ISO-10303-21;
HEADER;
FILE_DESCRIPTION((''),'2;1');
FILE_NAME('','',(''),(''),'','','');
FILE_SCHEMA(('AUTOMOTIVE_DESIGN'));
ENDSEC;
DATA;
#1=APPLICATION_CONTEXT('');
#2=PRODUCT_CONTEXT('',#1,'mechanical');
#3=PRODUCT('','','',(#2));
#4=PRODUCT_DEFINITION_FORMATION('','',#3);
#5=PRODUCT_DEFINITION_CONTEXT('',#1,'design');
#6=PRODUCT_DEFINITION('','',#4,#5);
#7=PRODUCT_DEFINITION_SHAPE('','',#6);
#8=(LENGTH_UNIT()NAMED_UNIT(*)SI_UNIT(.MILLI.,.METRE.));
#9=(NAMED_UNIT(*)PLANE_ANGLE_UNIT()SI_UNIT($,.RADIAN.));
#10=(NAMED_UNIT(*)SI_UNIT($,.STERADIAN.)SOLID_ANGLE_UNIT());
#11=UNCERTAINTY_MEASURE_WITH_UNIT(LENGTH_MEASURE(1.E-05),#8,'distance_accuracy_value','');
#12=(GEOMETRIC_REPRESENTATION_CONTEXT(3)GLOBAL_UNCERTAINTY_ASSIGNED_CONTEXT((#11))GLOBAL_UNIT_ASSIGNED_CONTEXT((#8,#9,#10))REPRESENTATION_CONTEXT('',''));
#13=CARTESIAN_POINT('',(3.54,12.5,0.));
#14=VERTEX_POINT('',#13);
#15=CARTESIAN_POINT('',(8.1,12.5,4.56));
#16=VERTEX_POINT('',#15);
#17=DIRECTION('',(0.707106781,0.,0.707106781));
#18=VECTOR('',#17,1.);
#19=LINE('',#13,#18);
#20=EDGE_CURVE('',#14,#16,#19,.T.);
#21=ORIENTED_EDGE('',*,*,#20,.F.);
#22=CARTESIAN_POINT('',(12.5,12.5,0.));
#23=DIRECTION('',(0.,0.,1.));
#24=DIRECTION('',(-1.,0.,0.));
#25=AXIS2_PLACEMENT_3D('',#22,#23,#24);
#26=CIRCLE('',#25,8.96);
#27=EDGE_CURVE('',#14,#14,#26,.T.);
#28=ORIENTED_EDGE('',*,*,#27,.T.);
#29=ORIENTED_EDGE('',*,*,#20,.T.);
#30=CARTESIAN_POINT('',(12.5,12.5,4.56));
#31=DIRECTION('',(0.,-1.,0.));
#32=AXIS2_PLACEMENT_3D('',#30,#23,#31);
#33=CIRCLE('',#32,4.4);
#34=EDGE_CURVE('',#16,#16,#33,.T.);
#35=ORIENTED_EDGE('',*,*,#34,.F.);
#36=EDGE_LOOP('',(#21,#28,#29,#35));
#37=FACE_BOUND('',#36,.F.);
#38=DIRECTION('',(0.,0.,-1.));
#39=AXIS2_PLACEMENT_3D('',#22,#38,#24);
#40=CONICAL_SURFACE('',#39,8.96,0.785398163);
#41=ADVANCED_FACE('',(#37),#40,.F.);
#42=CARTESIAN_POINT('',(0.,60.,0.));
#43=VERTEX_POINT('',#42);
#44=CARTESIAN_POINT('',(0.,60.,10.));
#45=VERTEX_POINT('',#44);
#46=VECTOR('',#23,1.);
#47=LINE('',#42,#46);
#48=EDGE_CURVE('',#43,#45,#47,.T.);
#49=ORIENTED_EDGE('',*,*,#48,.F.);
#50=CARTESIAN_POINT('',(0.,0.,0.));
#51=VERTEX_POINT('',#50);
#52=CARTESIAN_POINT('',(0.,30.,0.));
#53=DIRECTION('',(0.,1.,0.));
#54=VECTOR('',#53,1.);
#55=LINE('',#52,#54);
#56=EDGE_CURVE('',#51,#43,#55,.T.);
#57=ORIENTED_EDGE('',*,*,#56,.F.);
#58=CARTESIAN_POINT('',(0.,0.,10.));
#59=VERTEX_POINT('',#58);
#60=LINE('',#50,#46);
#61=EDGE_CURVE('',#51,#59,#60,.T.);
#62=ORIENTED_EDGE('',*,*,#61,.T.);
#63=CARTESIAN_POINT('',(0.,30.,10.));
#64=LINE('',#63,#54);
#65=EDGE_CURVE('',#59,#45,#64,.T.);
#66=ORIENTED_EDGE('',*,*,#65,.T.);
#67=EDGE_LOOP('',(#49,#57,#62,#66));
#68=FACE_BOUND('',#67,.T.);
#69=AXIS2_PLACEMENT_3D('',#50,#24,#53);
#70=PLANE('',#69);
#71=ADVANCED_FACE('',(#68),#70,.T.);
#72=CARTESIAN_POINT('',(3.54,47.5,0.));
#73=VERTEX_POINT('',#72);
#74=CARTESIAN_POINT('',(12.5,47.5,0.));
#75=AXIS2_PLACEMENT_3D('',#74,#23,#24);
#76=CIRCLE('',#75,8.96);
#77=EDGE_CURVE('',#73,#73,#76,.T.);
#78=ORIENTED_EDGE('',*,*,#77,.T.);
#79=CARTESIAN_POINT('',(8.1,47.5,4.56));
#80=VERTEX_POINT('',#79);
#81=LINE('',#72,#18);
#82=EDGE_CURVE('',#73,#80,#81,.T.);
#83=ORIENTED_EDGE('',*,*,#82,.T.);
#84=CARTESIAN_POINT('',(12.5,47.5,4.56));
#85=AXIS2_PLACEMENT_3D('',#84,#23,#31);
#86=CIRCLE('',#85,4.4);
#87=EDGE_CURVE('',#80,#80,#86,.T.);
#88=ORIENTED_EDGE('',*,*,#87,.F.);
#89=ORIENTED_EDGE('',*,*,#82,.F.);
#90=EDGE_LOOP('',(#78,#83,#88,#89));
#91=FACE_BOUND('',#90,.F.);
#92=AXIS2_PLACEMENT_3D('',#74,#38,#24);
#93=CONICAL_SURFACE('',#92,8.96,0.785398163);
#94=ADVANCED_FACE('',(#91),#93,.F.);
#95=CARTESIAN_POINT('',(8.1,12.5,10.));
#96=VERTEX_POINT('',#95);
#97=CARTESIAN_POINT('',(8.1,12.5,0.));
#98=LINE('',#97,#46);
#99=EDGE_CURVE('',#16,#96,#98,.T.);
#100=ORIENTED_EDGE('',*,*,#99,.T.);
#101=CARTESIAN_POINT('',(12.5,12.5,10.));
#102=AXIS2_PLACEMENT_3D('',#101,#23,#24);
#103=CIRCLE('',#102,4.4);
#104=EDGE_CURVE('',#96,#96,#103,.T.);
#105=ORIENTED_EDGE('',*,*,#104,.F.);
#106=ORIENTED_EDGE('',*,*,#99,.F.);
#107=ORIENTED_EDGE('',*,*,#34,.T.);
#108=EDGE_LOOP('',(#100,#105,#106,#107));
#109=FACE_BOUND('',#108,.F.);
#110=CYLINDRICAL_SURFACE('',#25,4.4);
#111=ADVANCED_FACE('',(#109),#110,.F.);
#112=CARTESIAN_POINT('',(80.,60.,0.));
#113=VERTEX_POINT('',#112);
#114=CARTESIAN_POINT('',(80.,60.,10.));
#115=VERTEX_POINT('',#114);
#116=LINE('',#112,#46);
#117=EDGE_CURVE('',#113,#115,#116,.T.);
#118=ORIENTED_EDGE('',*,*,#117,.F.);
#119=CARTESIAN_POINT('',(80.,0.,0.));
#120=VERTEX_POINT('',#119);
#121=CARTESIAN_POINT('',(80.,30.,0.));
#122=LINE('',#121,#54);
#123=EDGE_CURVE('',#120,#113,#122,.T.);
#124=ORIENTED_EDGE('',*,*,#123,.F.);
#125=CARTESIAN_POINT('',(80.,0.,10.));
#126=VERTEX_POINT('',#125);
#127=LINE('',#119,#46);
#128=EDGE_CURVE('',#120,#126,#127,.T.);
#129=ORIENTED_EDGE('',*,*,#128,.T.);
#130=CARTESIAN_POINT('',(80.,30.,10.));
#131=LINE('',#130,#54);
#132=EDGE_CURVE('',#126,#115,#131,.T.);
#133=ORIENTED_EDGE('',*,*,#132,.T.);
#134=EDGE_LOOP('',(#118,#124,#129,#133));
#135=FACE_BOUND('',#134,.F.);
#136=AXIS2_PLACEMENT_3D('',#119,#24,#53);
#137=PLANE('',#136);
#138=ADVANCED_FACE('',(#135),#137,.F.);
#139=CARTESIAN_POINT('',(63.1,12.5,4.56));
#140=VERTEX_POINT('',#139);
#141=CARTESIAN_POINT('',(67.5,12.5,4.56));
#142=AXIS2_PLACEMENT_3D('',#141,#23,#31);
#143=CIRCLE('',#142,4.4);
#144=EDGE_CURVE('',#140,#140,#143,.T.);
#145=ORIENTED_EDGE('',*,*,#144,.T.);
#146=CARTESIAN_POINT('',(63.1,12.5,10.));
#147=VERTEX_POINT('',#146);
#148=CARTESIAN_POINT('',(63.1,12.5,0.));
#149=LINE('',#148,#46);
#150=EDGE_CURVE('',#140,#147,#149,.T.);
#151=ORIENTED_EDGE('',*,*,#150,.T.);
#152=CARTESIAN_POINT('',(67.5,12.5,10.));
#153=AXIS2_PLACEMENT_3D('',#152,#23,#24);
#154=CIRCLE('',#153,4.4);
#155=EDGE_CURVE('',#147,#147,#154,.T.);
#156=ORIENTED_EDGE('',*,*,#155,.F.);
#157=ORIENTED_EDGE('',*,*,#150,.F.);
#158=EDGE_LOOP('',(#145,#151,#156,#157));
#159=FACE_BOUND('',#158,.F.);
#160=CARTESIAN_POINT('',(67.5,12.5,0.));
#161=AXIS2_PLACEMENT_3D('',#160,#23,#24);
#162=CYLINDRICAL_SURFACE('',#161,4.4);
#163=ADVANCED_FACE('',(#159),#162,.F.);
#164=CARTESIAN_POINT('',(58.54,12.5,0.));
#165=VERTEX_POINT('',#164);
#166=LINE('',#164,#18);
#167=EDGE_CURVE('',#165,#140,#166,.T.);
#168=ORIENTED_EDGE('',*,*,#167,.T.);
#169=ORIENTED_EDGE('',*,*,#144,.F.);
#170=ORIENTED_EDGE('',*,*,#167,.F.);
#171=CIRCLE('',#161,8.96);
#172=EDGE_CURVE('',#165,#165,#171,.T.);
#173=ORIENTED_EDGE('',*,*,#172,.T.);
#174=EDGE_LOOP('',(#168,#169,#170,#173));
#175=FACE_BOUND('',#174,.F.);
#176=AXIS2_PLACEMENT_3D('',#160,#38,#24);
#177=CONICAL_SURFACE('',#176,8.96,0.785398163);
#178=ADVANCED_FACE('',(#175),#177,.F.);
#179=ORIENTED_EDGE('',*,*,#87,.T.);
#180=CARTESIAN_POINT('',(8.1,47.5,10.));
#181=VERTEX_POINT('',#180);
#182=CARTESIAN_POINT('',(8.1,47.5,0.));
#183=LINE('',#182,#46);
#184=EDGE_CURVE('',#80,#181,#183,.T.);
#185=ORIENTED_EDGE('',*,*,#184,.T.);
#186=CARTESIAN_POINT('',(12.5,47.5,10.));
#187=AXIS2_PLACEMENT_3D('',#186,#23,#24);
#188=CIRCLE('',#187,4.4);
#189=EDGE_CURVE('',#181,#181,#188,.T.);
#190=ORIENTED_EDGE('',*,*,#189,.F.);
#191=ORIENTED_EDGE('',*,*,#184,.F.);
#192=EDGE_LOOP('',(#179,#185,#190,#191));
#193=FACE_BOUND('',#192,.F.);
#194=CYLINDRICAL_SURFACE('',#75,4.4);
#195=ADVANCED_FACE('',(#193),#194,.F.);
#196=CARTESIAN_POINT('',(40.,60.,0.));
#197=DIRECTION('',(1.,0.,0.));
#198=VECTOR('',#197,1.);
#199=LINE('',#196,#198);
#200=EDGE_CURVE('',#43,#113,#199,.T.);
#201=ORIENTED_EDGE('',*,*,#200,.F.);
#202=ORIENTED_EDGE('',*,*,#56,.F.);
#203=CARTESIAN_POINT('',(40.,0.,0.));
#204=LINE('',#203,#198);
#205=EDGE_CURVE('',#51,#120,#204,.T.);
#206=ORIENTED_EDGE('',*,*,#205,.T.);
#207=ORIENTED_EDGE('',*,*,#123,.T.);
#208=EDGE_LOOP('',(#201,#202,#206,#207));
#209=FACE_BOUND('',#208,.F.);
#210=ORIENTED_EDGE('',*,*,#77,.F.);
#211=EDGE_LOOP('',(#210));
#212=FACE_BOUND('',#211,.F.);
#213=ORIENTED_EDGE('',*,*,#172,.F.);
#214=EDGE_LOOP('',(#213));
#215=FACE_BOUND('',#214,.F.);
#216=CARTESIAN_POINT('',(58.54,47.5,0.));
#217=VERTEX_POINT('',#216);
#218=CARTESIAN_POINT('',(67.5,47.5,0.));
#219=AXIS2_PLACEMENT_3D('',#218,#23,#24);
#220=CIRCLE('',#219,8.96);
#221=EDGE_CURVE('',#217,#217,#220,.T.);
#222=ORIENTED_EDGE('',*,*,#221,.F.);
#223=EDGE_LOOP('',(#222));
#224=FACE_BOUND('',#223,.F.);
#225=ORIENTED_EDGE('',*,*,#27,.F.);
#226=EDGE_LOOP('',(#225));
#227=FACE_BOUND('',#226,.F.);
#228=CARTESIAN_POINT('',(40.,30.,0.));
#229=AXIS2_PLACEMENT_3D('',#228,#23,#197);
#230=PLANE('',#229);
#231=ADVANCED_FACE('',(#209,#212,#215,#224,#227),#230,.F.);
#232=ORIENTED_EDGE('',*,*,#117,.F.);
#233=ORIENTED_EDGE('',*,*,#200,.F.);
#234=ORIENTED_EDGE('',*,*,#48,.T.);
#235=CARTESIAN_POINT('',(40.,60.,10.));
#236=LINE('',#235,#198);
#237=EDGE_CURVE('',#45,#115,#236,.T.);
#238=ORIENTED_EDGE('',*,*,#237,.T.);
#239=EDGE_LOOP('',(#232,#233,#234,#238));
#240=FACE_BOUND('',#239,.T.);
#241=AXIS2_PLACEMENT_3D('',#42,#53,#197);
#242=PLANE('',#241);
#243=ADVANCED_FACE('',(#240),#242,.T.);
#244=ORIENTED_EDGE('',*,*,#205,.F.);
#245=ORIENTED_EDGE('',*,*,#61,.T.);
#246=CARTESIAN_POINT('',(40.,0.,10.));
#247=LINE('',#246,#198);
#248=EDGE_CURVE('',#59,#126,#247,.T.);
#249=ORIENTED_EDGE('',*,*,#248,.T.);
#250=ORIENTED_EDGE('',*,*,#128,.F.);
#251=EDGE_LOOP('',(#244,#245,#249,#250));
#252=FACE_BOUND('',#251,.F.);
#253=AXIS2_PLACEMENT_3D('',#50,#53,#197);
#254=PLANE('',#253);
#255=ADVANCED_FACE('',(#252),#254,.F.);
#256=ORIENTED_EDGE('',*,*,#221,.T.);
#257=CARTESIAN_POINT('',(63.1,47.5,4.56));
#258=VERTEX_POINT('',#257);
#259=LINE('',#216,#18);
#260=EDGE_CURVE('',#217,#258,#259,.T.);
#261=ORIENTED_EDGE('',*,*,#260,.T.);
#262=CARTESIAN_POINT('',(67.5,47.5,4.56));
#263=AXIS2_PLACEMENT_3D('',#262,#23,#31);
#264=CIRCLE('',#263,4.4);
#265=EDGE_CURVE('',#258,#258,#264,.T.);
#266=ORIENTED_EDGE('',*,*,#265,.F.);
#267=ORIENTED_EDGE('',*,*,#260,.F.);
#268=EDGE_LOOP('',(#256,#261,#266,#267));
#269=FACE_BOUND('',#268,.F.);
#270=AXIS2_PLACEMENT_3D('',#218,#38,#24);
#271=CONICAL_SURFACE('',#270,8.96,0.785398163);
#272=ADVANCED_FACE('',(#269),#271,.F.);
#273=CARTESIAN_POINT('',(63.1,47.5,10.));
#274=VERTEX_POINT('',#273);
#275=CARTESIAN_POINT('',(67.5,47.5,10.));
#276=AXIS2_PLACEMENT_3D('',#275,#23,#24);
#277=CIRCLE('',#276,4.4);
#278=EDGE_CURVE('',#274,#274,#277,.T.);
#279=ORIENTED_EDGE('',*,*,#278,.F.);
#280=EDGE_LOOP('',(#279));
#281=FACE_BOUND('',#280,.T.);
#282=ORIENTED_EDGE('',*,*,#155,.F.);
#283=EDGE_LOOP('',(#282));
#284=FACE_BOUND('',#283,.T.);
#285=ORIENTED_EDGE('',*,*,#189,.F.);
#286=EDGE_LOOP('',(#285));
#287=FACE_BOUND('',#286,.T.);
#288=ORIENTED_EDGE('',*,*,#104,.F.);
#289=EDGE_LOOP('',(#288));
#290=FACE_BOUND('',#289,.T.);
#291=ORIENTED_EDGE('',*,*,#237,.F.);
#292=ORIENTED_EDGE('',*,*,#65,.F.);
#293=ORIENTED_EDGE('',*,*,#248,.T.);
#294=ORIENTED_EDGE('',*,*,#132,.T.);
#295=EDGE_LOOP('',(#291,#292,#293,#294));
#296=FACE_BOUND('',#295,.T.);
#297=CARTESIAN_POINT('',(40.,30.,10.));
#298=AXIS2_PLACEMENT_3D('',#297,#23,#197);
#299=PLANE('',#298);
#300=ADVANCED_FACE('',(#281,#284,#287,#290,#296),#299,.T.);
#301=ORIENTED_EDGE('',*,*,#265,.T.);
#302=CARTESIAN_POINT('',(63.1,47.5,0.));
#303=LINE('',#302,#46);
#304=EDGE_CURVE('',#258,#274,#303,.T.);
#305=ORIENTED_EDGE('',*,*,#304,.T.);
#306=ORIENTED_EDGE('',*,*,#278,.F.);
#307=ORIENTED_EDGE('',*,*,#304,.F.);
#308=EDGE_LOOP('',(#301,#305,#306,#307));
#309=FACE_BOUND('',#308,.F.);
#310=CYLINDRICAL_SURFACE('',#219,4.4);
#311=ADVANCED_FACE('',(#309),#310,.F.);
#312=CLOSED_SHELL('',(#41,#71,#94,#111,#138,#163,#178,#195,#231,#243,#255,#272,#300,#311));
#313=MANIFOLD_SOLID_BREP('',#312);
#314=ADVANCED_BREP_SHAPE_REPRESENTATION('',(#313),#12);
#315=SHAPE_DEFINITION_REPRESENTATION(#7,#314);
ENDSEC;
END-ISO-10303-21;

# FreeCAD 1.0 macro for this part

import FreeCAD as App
import Part
import Sketcher
Q = App.Units.Quantity


def add_polygon(sketch, points):
    """Adds a closed chain of lines whose ends are joined by coincident constraints."""
    first, n = sketch.GeometryCount, len(points)
    for a, b in zip(points, points[1:] + points[:1]):
        sketch.addGeometry(Part.LineSegment(App.Vector(*a, 0), App.Vector(*b, 0)), False)
    for i in range(n):
        sketch.addConstraint(Sketcher.Constraint("Coincident", first + i, 2, first + (i + 1) % n, 1))

doc = App.newDocument("Part")
body = doc.addObject("PartDesign::Body", "Body")

sketch1 = body.newObject("Sketcher::SketchObject", "Sketch")
sketch1.AttachmentSupport = (doc.getObject("XY_Plane"), [""])
sketch1.MapMode = "FlatFace"
add_polygon(sketch1, [(0, 60), (0, 0), (80, 0), (80, 60)])
sketch1.addConstraint(Sketcher.Constraint("Vertical", 0))
sketch1.addConstraint(Sketcher.Constraint("Horizontal", 1))
sketch1.addConstraint(Sketcher.Constraint("Vertical", 2))
sketch1.addConstraint(Sketcher.Constraint("Horizontal", 3))
sketch1.addConstraint(Sketcher.Constraint("Coincident", 0, 2, -1, 1))
sketch1.addConstraint(Sketcher.Constraint("DistanceX", 1, 1, 1, 2, Q("80 mm")))
sketch1.addConstraint(Sketcher.Constraint("DistanceY", 0, 2, 0, 1, Q("60 mm")))
pad1 = body.newObject("PartDesign::Pad", "Pad")
pad1.Profile = sketch1
pad1.Length = 10

sketch2 = body.newObject("Sketcher::SketchObject", "Sketch001")
sketch2.AttachmentSupport = (doc.getObject("XY_Plane"), [""])
sketch2.MapMode = "FlatFace"
sketch2.addGeometry(Part.Circle(App.Vector(12.5, 12.5, 0), App.Vector(0, 0, 1), 4.4), False)
sketch2.addGeometry(Part.Circle(App.Vector(67.5, 12.5, 0), App.Vector(0, 0, 1), 4.4), False)
sketch2.addGeometry(Part.Circle(App.Vector(67.5, 47.5, 0), App.Vector(0, 0, 1), 4.4), False)
sketch2.addGeometry(Part.Circle(App.Vector(12.5, 47.5, 0), App.Vector(0, 0, 1), 4.4), False)
sketch2.addConstraint(Sketcher.Constraint("Equal", 0, 1))
sketch2.addConstraint(Sketcher.Constraint("Equal", 1, 2))
sketch2.addConstraint(Sketcher.Constraint("Equal", 2, 3))
sketch2.addConstraint(Sketcher.Constraint("Horizontal", 0, 3, 1, 3))
sketch2.addConstraint(Sketcher.Constraint("Horizontal", 2, 3, 3, 3))
sketch2.addConstraint(Sketcher.Constraint("Vertical", 1, 3, 2, 3))
sketch2.addConstraint(Sketcher.Constraint("Vertical", 0, 3, 3, 3))
sketch2.addConstraint(Sketcher.Constraint("Diameter", 0, Q("8.8 mm")))
sketch2.addConstraint(Sketcher.Constraint("DistanceX", 0, 3, 1, 3, Q("55 mm")))
sketch2.addConstraint(Sketcher.Constraint("DistanceY", 1, 3, 2, 3, Q("35 mm")))
sketch2.addConstraint(Sketcher.Constraint("DistanceX", -1, 1, 0, 3, Q("12.5 mm")))
sketch2.addConstraint(Sketcher.Constraint("DistanceY", -1, 1, 0, 3, Q("12.5 mm")))
doc.recompute()
hole = body.newObject("PartDesign::Hole", "Hole")
hole.Profile = sketch2
hole.ThreadType = "None"
hole.Diameter = 8.8
hole.DepthType = "ThroughAll"
hole.HoleCutType = "Countersink"
hole.HoleCutDiameter = 17.92
hole.HoleCutCountersinkAngle = 90
hole.Reversed = True

doc.recompute()
